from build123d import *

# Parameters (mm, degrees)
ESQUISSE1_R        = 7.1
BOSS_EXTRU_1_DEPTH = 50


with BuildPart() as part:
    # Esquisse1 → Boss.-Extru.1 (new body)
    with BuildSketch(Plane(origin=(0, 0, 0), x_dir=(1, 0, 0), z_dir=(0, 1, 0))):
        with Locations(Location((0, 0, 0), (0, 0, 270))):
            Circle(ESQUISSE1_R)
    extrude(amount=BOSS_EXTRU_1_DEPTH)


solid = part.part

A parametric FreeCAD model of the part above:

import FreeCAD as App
import Part
import Sketcher
from FreeCAD import Vector
Q = App.Units.Quantity

doc = App.newDocument("Part")
body = doc.addObject("PartDesign::Body", "Body")

# Sketch on XZ plane
sketch1 = doc.addObject("Sketcher::SketchObject", "Sketch")
body.addObject(sketch1)
sketch1.AttachmentSupport = (doc.XZ_Plane, [""])
sketch1.MapMode = "FlatFace"
sketch1.addGeometry(Part.Circle(Vector(0, 0, 0), Vector(0, 0, 1), 7.1), False)
sketch1.addConstraint(Sketcher.Constraint("Coincident", 0, 3, -1, 1))
sketch1.addConstraint(Sketcher.Constraint("Diameter", 0, Q("14.2 mm")))
pad1 = doc.addObject("PartDesign::Pad", "Pad")
body.addObject(pad1)
pad1.Profile = sketch1
pad1.Length = 50
pad1.Reversed = True

doc.recompute()
